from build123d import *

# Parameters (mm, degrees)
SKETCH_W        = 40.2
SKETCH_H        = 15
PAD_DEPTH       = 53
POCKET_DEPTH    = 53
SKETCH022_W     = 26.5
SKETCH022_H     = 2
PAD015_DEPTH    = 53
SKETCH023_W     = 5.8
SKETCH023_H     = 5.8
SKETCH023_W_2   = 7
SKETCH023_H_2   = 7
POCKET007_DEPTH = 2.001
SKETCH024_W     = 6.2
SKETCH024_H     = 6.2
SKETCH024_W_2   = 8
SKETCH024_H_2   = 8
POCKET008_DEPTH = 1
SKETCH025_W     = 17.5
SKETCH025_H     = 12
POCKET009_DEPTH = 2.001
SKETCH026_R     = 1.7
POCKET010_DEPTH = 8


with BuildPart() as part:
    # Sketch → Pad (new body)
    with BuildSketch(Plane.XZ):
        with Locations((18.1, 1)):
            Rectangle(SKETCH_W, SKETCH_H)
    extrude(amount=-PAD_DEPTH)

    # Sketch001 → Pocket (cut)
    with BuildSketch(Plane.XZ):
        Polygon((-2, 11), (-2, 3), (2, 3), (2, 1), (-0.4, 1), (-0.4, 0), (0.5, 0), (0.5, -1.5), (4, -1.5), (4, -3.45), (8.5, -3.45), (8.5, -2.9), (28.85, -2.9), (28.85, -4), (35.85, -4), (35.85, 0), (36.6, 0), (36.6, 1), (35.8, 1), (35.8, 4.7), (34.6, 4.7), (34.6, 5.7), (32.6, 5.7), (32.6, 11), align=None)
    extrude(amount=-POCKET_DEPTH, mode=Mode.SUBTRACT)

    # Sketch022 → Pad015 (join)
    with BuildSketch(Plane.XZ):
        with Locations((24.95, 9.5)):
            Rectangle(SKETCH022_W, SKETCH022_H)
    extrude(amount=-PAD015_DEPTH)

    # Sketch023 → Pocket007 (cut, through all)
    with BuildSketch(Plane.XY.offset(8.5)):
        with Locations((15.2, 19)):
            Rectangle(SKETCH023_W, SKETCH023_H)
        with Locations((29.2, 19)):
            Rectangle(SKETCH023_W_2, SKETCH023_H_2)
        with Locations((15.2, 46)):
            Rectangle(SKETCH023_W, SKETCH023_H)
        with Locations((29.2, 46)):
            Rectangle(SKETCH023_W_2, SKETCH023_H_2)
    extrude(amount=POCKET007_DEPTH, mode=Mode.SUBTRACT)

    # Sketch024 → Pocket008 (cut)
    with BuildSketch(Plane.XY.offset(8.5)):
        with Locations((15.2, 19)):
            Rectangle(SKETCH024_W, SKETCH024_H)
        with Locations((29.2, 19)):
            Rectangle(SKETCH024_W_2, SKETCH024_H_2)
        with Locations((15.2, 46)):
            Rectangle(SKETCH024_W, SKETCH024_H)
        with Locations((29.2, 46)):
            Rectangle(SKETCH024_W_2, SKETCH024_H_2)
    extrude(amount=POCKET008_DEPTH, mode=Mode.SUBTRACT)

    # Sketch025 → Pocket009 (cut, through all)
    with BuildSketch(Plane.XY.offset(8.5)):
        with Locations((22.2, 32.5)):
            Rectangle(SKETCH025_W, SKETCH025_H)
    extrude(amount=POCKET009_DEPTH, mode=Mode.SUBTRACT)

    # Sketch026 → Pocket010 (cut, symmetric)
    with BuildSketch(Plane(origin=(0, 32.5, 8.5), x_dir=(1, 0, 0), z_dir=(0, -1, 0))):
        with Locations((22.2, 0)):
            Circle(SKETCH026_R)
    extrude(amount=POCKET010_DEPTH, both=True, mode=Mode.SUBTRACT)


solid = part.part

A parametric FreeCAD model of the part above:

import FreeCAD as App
import Part
import Sketcher

doc = App.newDocument("Part")
body = doc.addObject("PartDesign::Body", "Body")

sketch1 = doc.addObject("Sketcher::SketchObject", "Sketch")
body.addObject(sketch1)
sketch1.AttachmentSupport = (doc.XZ_Plane, [""])
sketch1.MapMode = "FlatFace"
sketch1.addGeometry(Part.LineSegment(App.Vector(-2, 8, 0), App.Vector(-2, -6, 0)), False)
sketch1.addGeometry(Part.LineSegment(App.Vector(-2, -6, 0), App.Vector(38, -6, 0)), False)
sketch1.addGeometry(Part.LineSegment(App.Vector(38, -6, 0), App.Vector(38, 8, 0)), False)
sketch1.addGeometry(Part.LineSegment(App.Vector(38, 8, 0), App.Vector(-2, 8, 0)), False)
sketch1.addConstraint(Sketcher.Constraint("Coincident", 0, 2, 1, 1))
sketch1.addConstraint(Sketcher.Constraint("Coincident", 1, 2, 2, 1))
sketch1.addConstraint(Sketcher.Constraint("Coincident", 2, 2, 3, 1))
sketch1.addConstraint(Sketcher.Constraint("Coincident", 3, 2, 0, 1))
sketch1.addConstraint(Sketcher.Constraint("Vertical", 0))
sketch1.addConstraint(Sketcher.Constraint("Horizontal", 1))
sketch1.addConstraint(Sketcher.Constraint("Vertical", 2))
sketch1.addConstraint(Sketcher.Constraint("Horizontal", 3))
sketch1.addConstraint(Sketcher.Constraint("DistanceY", 0, 2, 0, 1, 15.0))
sketch1.addConstraint(Sketcher.Constraint("DistanceX", 1, 1, 1, 2, 40.2))
sketch1.addConstraint(Sketcher.Constraint("DistanceX", 0, 2, -1, 1, 2.0))
sketch1.addConstraint(Sketcher.Constraint("DistanceY", 0, 2, -1, 1, 6.5))
pad1 = doc.addObject("PartDesign::Pad", "Pad")
body.addObject(pad1)
pad1.Profile = sketch1
pad1.Length = 53
pad1.Reversed = True

sketch2 = doc.addObject("Sketcher::SketchObject", "Sketch001")
body.addObject(sketch2)
sketch2.AttachmentSupport = (doc.XZ_Plane, [""])
sketch2.MapMode = "FlatFace"
sketch2.addGeometry(Part.LineSegment(App.Vector(-2, 11, 0), App.Vector(-2, 3, 0)), False)
sketch2.addGeometry(Part.LineSegment(App.Vector(-2, 3, 0), App.Vector(2, 3, 0)), False)
sketch2.addGeometry(Part.LineSegment(App.Vector(2, 3, 0), App.Vector(2, 1, 0)), False)
sketch2.addGeometry(Part.LineSegment(App.Vector(2, 1, 0), App.Vector(-0.4, 1, 0)), False)
sketch2.addGeometry(Part.LineSegment(App.Vector(-0.4, 1, 0), App.Vector(-0.4, 0, 0)), False)
sketch2.addGeometry(Part.LineSegment(App.Vector(-0.4, 0, 0), App.Vector(0.5, 0, 0)), False)
sketch2.addGeometry(Part.LineSegment(App.Vector(0.5, 0, 0), App.Vector(0.5, -1.5, 0)), False)
sketch2.addGeometry(Part.LineSegment(App.Vector(0.5, -1.5, 0), App.Vector(4, -1.5, 0)), False)
sketch2.addGeometry(Part.LineSegment(App.Vector(4, -1.5, 0), App.Vector(4, -3.5, 0)), False)
sketch2.addGeometry(Part.LineSegment(App.Vector(4, -3.5, 0), App.Vector(8.5, -3.5, 0)), False)
sketch2.addGeometry(Part.LineSegment(App.Vector(8.5, -3.5, 0), App.Vector(8.5, -2.9, 0)), False)
sketch2.addGeometry(Part.LineSegment(App.Vector(8.5, -2.9, 0), App.Vector(28.9, -2.9, 0)), False)
sketch2.addGeometry(Part.LineSegment(App.Vector(28.9, -2.9, 0), App.Vector(28.9, -4, 0)), False)
sketch2.addGeometry(Part.LineSegment(App.Vector(28.9, -4, 0), App.Vector(35.9, -4, 0)), False)
sketch2.addGeometry(Part.LineSegment(App.Vector(35.9, -4, 0), App.Vector(35.9, 0, 0)), False)
sketch2.addGeometry(Part.LineSegment(App.Vector(35.9, 0, 0), App.Vector(36.6, 0, 0)), False)
sketch2.addGeometry(Part.LineSegment(App.Vector(36.6, 0, 0), App.Vector(36.6, 1, 0)), False)
sketch2.addGeometry(Part.LineSegment(App.Vector(36.6, 1, 0), App.Vector(35.8, 1, 0)), False)
sketch2.addGeometry(Part.LineSegment(App.Vector(35.8, 1, 0), App.Vector(35.8, 4.7, 0)), False)
sketch2.addGeometry(Part.LineSegment(App.Vector(35.8, 4.7, 0), App.Vector(34.6, 4.7, 0)), False)
sketch2.addGeometry(Part.LineSegment(App.Vector(34.6, 4.7, 0), App.Vector(34.6, 5.7, 0)), False)
sketch2.addGeometry(Part.LineSegment(App.Vector(34.6, 5.7, 0), App.Vector(32.6, 5.7, 0)), False)
sketch2.addGeometry(Part.LineSegment(App.Vector(32.6, 5.7, 0), App.Vector(32.6, 11, 0)), False)
sketch2.addGeometry(Part.LineSegment(App.Vector(32.6, 11, 0), App.Vector(-2, 11, 0)), False)
sketch2.addConstraint(Sketcher.Constraint("Coincident", 0, 2, 1, 1))
sketch2.addConstraint(Sketcher.Constraint("Coincident", 1, 2, 2, 1))
sketch2.addConstraint(Sketcher.Constraint("Coincident", 2, 2, 3, 1))
sketch2.addConstraint(Sketcher.Constraint("Coincident", 3, 2, 4, 1))
sketch2.addConstraint(Sketcher.Constraint("Coincident", 4, 2, 5, 1))
sketch2.addConstraint(Sketcher.Constraint("Coincident", 5, 2, 6, 1))
sketch2.addConstraint(Sketcher.Constraint("Coincident", 6, 2, 7, 1))
sketch2.addConstraint(Sketcher.Constraint("Coincident", 7, 2, 8, 1))
sketch2.addConstraint(Sketcher.Constraint("Coincident", 8, 2, 9, 1))
sketch2.addConstraint(Sketcher.Constraint("Coincident", 9, 2, 10, 1))
sketch2.addConstraint(Sketcher.Constraint("Coincident", 10, 2, 11, 1))
sketch2.addConstraint(Sketcher.Constraint("Coincident", 11, 2, 12, 1))
sketch2.addConstraint(Sketcher.Constraint("Coincident", 12, 2, 13, 1))
sketch2.addConstraint(Sketcher.Constraint("Coincident", 13, 2, 14, 1))
sketch2.addConstraint(Sketcher.Constraint("Coincident", 14, 2, 15, 1))
sketch2.addConstraint(Sketcher.Constraint("Coincident", 15, 2, 16, 1))
sketch2.addConstraint(Sketcher.Constraint("Coincident", 16, 2, 17, 1))
sketch2.addConstraint(Sketcher.Constraint("Coincident", 17, 2, 18, 1))
sketch2.addConstraint(Sketcher.Constraint("Coincident", 18, 2, 19, 1))
sketch2.addConstraint(Sketcher.Constraint("Coincident", 19, 2, 20, 1))
sketch2.addConstraint(Sketcher.Constraint("Coincident", 20, 2, 21, 1))
sketch2.addConstraint(Sketcher.Constraint("Coincident", 21, 2, 22, 1))
sketch2.addConstraint(Sketcher.Constraint("Coincident", 22, 2, 23, 1))
sketch2.addConstraint(Sketcher.Constraint("Coincident", 23, 2, 0, 1))
sketch2.addConstraint(Sketcher.Constraint("Vertical", 0))
sketch2.addConstraint(Sketcher.Constraint("Horizontal", 1))
sketch2.addConstraint(Sketcher.Constraint("Vertical", 2))
sketch2.addConstraint(Sketcher.Constraint("Horizontal", 3))
sketch2.addConstraint(Sketcher.Constraint("Vertical", 4))
sketch2.addConstraint(Sketcher.Constraint("Horizontal", 5))
sketch2.addConstraint(Sketcher.Constraint("Vertical", 6))
sketch2.addConstraint(Sketcher.Constraint("Horizontal", 7))
sketch2.addConstraint(Sketcher.Constraint("Vertical", 8))
sketch2.addConstraint(Sketcher.Constraint("Horizontal", 9))
sketch2.addConstraint(Sketcher.Constraint("Vertical", 10))
sketch2.addConstraint(Sketcher.Constraint("Horizontal", 11))
sketch2.addConstraint(Sketcher.Constraint("Vertical", 12))
sketch2.addConstraint(Sketcher.Constraint("Horizontal", 13))
sketch2.addConstraint(Sketcher.Constraint("Vertical", 14))
sketch2.addConstraint(Sketcher.Constraint("Horizontal", 15))
sketch2.addConstraint(Sketcher.Constraint("Vertical", 16))
sketch2.addConstraint(Sketcher.Constraint("Horizontal", 17))
sketch2.addConstraint(Sketcher.Constraint("Vertical", 18))
sketch2.addConstraint(Sketcher.Constraint("Horizontal", 19))
sketch2.addConstraint(Sketcher.Constraint("Vertical", 20))
sketch2.addConstraint(Sketcher.Constraint("Horizontal", 21))
sketch2.addConstraint(Sketcher.Constraint("Vertical", 22))
sketch2.addConstraint(Sketcher.Constraint("Horizontal", 23))
sketch2.addConstraint(Sketcher.Constraint("PointOnObject", 4, 2, -1))
sketch2.addConstraint(Sketcher.Constraint("PointOnObject", 14, 2, -1))
sketch2.addConstraint(Sketcher.Constraint("Horizontal", 3, 2, 16, 2))
sketch2.addConstraint(Sketcher.Constraint("Equal", 21, 2))
sketch2.addConstraint(Sketcher.Constraint("Equal", 1, 14))
sketch2.addConstraint(Sketcher.Constraint("Equal", 16, 20))
sketch2.addConstraint(Sketcher.Constraint("DistanceX", 1, 1, 1, 2, 4.0))
sketch2.addConstraint(Sketcher.Constraint("DistanceX", 13, 1, 13, 2, 7.0))
sketch2.addConstraint(Sketcher.Constraint("DistanceX", 21, 2, 21, 1, 2.0))
sketch2.addConstraint(Sketcher.Constraint("DistanceY", 0, 2, 0, 1, 8.0))
sketch2.addConstraint(Sketcher.Constraint("DistanceY", 4, 2, 4, 1, 1.0))
sketch2.addConstraint(Sketcher.Constraint("DistanceX", 3, 2, 3, 1, 2.4))
sketch2.addConstraint(Sketcher.Constraint("DistanceX", 5, 1, 5, 2, 0.9))
sketch2.addConstraint(Sketcher.Constraint("DistanceX", 7, 1, 7, 2, 3.5))
sketch2.addConstraint(Sketcher.Constraint("DistanceX", 9, 1, 9, 2, 4.5))
sketch2.addConstraint(Sketcher.Constraint("DistanceX", 17, 2, 17, 1, 0.8))
sketch2.addConstraint(Sketcher.Constraint("DistanceX", 19, 2, 19, 1, 1.2))
sketch2.addConstraint(Sketcher.Constraint("DistanceX", 23, 2, 23, 1, 34.6))
sketch2.addConstraint(Sketcher.Constraint("DistanceY", 6, 2, 6, 1, 1.5))
sketch2.addConstraint(Sketcher.Constraint("DistanceY", 12, 2, 12, 1, 1.1))
sketch2.addConstraint(Sketcher.Constraint("DistanceY", 18, 1, 18, 2, 3.7))
sketch2.addConstraint(Sketcher.Constraint("DistanceX", 0, 2, -1, 1, 2.0))
sketch2.addConstraint(Sketcher.Constraint("DistanceX", 11, 1, 11, 2, 20.35))
sketch2.addConstraint(Sketcher.Constraint("DistanceY", 8, 2, 8, 1, 1.95))
pocket1 = doc.addObject("PartDesign::Pocket", "Pocket")
body.addObject(pocket1)
pocket1.Profile = sketch2
pocket1.Length = 53

sketch3 = doc.addObject("Sketcher::SketchObject", "Sketch002")
body.addObject(sketch3)
sketch3.AttachmentSupport = (doc.XZ_Plane, [""])
sketch3.MapMode = "FlatFace"
sketch3.addGeometry(Part.LineSegment(App.Vector(11.7, 10.5, 0), App.Vector(11.7, 8.5, 0)), False)
sketch3.addGeometry(Part.LineSegment(App.Vector(11.7, 8.5, 0), App.Vector(38.2, 8.5, 0)), False)
sketch3.addGeometry(Part.LineSegment(App.Vector(38.2, 8.5, 0), App.Vector(38.2, 10.5, 0)), False)
sketch3.addGeometry(Part.LineSegment(App.Vector(38.2, 10.5, 0), App.Vector(11.7, 10.5, 0)), False)
sketch3.addConstraint(Sketcher.Constraint("Coincident", 0, 2, 1, 1))
sketch3.addConstraint(Sketcher.Constraint("Coincident", 1, 2, 2, 1))
sketch3.addConstraint(Sketcher.Constraint("Coincident", 2, 2, 3, 1))
sketch3.addConstraint(Sketcher.Constraint("Coincident", 3, 2, 0, 1))
sketch3.addConstraint(Sketcher.Constraint("Vertical", 0))
sketch3.addConstraint(Sketcher.Constraint("Horizontal", 1))
sketch3.addConstraint(Sketcher.Constraint("Vertical", 2))
sketch3.addConstraint(Sketcher.Constraint("Horizontal", 3))
sketch3.addConstraint(Sketcher.Constraint("DistanceY", 0, 2, 0, 1, 2.0))
sketch3.addConstraint(Sketcher.Constraint("DistanceX", 1, 1, 1, 2, 26.5))
sketch3.addConstraint(Sketcher.Constraint("DistanceX", -1, 1, 0, 2, 11.7))
sketch3.addConstraint(Sketcher.Constraint("DistanceY", -1, 1, 0, 2, 8.5))
pad2 = doc.addObject("PartDesign::Pad", "Pad001")
body.addObject(pad2)
pad2.Profile = sketch3
pad2.Length = 53
pad2.Reversed = True

sketch4 = doc.addObject("Sketcher::SketchObject", "Sketch003")
body.addObject(sketch4)
sketch4.AttachmentSupport = (doc.XY_Plane, [""])
sketch4.MapMode = "FlatFace"
sketch4.AttachmentOffset = App.Placement(App.Vector(0, 0, 8.5), App.Rotation())
sketch4.addGeometry(Part.LineSegment(App.Vector(12, 22, 0), App.Vector(12, 16, 0)), False)
sketch4.addGeometry(Part.LineSegment(App.Vector(12, 16, 0), App.Vector(18, 16, 0)), False)
sketch4.addGeometry(Part.LineSegment(App.Vector(18, 16, 0), App.Vector(18, 22, 0)), False)
sketch4.addGeometry(Part.LineSegment(App.Vector(18, 22, 0), App.Vector(12, 22, 0)), False)
sketch4.addGeometry(Part.LineSegment(App.Vector(26, 22, 0), App.Vector(26, 16, 0)), False)
sketch4.addGeometry(Part.LineSegment(App.Vector(26, 16, 0), App.Vector(33, 16, 0)), False)
sketch4.addGeometry(Part.LineSegment(App.Vector(33, 16, 0), App.Vector(33, 22, 0)), False)
sketch4.addGeometry(Part.LineSegment(App.Vector(33, 22, 0), App.Vector(26, 22, 0)), False)
sketch4.addGeometry(Part.LineSegment(App.Vector(12, 49, 0), App.Vector(12, 43, 0)), False)
sketch4.addGeometry(Part.LineSegment(App.Vector(12, 43, 0), App.Vector(18, 43, 0)), False)
sketch4.addGeometry(Part.LineSegment(App.Vector(18, 43, 0), App.Vector(18, 49, 0)), False)
sketch4.addGeometry(Part.LineSegment(App.Vector(18, 49, 0), App.Vector(12, 49, 0)), False)
sketch4.addGeometry(Part.LineSegment(App.Vector(26, 50, 0), App.Vector(26, 42, 0)), False)
sketch4.addGeometry(Part.LineSegment(App.Vector(26, 42, 0), App.Vector(33, 42, 0)), False)
sketch4.addGeometry(Part.LineSegment(App.Vector(33, 42, 0), App.Vector(33, 50, 0)), False)
sketch4.addGeometry(Part.LineSegment(App.Vector(33, 50, 0), App.Vector(26, 50, 0)), False)
sketch4.addConstraint(Sketcher.Constraint("Coincident", 0, 2, 1, 1))
sketch4.addConstraint(Sketcher.Constraint("Coincident", 1, 2, 2, 1))
sketch4.addConstraint(Sketcher.Constraint("Coincident", 2, 2, 3, 1))
sketch4.addConstraint(Sketcher.Constraint("Coincident", 3, 2, 0, 1))
sketch4.addConstraint(Sketcher.Constraint("Coincident", 4, 2, 5, 1))
sketch4.addConstraint(Sketcher.Constraint("Coincident", 5, 2, 6, 1))
sketch4.addConstraint(Sketcher.Constraint("Coincident", 6, 2, 7, 1))
sketch4.addConstraint(Sketcher.Constraint("Coincident", 7, 2, 4, 1))
sketch4.addConstraint(Sketcher.Constraint("Coincident", 8, 2, 9, 1))
sketch4.addConstraint(Sketcher.Constraint("Coincident", 9, 2, 10, 1))
sketch4.addConstraint(Sketcher.Constraint("Coincident", 10, 2, 11, 1))
sketch4.addConstraint(Sketcher.Constraint("Coincident", 11, 2, 8, 1))
sketch4.addConstraint(Sketcher.Constraint("Coincident", 12, 2, 13, 1))
sketch4.addConstraint(Sketcher.Constraint("Coincident", 13, 2, 14, 1))
sketch4.addConstraint(Sketcher.Constraint("Coincident", 14, 2, 15, 1))
sketch4.addConstraint(Sketcher.Constraint("Coincident", 15, 2, 12, 1))
sketch4.addConstraint(Sketcher.Constraint("Vertical", 0))
sketch4.addConstraint(Sketcher.Constraint("Horizontal", 1))
sketch4.addConstraint(Sketcher.Constraint("Vertical", 2))
sketch4.addConstraint(Sketcher.Constraint("Horizontal", 3))
sketch4.addConstraint(Sketcher.Constraint("Vertical", 4))
sketch4.addConstraint(Sketcher.Constraint("Horizontal", 5))
sketch4.addConstraint(Sketcher.Constraint("Vertical", 6))
sketch4.addConstraint(Sketcher.Constraint("Horizontal", 7))
sketch4.addConstraint(Sketcher.Constraint("Vertical", 8))
sketch4.addConstraint(Sketcher.Constraint("Horizontal", 9))
sketch4.addConstraint(Sketcher.Constraint("Vertical", 10))
sketch4.addConstraint(Sketcher.Constraint("Horizontal", 11))
sketch4.addConstraint(Sketcher.Constraint("Vertical", 12))
sketch4.addConstraint(Sketcher.Constraint("Horizontal", 13))
sketch4.addConstraint(Sketcher.Constraint("Vertical", 14))
sketch4.addConstraint(Sketcher.Constraint("Horizontal", 15))
sketch4.addConstraint(Sketcher.Constraint("Vertical", 3, 2, 8, 2))
sketch4.addConstraint(Sketcher.Constraint("Vertical", 2, 2, 9, 2))
sketch4.addConstraint(Sketcher.Constraint("Vertical", 7, 2, 12, 2))
sketch4.addConstraint(Sketcher.Constraint("Vertical", 6, 2, 13, 2))
sketch4.addConstraint(Sketcher.Constraint("Equal", 11, 0))
sketch4.addConstraint(Sketcher.Constraint("Equal", 15, 4))
sketch4.addConstraint(Sketcher.Constraint("Equal", 2, 8))
sketch4.addConstraint(Sketcher.Constraint("Equal", 6, 12))
sketch4.addConstraint(Sketcher.Constraint("DistanceX", 5, 1, 5, 2, 7.0))
sketch4.addConstraint(Sketcher.Constraint("DistanceX", 1, 1, 1, 2, 5.8))
sketch4.addConstraint(Sketcher.Constraint("DistanceY", 0, 2, 8, 2, 27.0))
sketch4.addConstraint(Sketcher.Constraint("DistanceY", 7, 2, 12, 2, 20.0))
sketch4.addConstraint(Sketcher.Constraint("DistanceX", -1, 1, 0, 2, 12.3))
sketch4.addConstraint(Sketcher.Constraint("DistanceY", -1, 1, 0, 2, 16.1))
sketch4.addConstraint(Sketcher.Constraint("DistanceX", -1, 1, 4, 2, 25.7))
sketch4.addConstraint(Sketcher.Constraint("DistanceY", -1, 1, 4, 2, 15.5))
pocket2 = doc.addObject("PartDesign::Pocket", "Pocket001")
body.addObject(pocket2)
pocket2.Profile = sketch4
pocket2.Type = "ThroughAll"
pocket2.Reversed = True

sketch5 = doc.addObject("Sketcher::SketchObject", "Sketch004")
body.addObject(sketch5)
sketch5.AttachmentSupport = (doc.XY_Plane, [""])
sketch5.MapMode = "FlatFace"
sketch5.AttachmentOffset = App.Placement(App.Vector(0, 0, 8.5), App.Rotation())
sketch5.addGeometry(Part.LineSegment(App.Vector(12, 22, 0), App.Vector(12, 16, 0)), False)
sketch5.addGeometry(Part.LineSegment(App.Vector(12, 16, 0), App.Vector(18, 16, 0)), False)
sketch5.addGeometry(Part.LineSegment(App.Vector(18, 16, 0), App.Vector(18, 22, 0)), False)
sketch5.addGeometry(Part.LineSegment(App.Vector(18, 22, 0), App.Vector(12, 22, 0)), False)
sketch5.addGeometry(Part.LineSegment(App.Vector(25, 23, 0), App.Vector(25, 15, 0)), False)
sketch5.addGeometry(Part.LineSegment(App.Vector(25, 15, 0), App.Vector(33, 15, 0)), False)
sketch5.addGeometry(Part.LineSegment(App.Vector(33, 15, 0), App.Vector(33, 23, 0)), False)
sketch5.addGeometry(Part.LineSegment(App.Vector(33, 23, 0), App.Vector(25, 23, 0)), False)
sketch5.addGeometry(Part.LineSegment(App.Vector(12, 49, 0), App.Vector(12, 43, 0)), False)
sketch5.addGeometry(Part.LineSegment(App.Vector(12, 43, 0), App.Vector(18, 43, 0)), False)
sketch5.addGeometry(Part.LineSegment(App.Vector(18, 43, 0), App.Vector(18, 49, 0)), False)
sketch5.addGeometry(Part.LineSegment(App.Vector(18, 49, 0), App.Vector(12, 49, 0)), False)
sketch5.addGeometry(Part.LineSegment(App.Vector(25, 50, 0), App.Vector(25, 42, 0)), False)
sketch5.addGeometry(Part.LineSegment(App.Vector(25, 42, 0), App.Vector(33, 42, 0)), False)
sketch5.addGeometry(Part.LineSegment(App.Vector(33, 42, 0), App.Vector(33, 50, 0)), False)
sketch5.addGeometry(Part.LineSegment(App.Vector(33, 50, 0), App.Vector(25, 50, 0)), False)
sketch5.addConstraint(Sketcher.Constraint("Coincident", 0, 2, 1, 1))
sketch5.addConstraint(Sketcher.Constraint("Coincident", 1, 2, 2, 1))
sketch5.addConstraint(Sketcher.Constraint("Coincident", 2, 2, 3, 1))
sketch5.addConstraint(Sketcher.Constraint("Coincident", 3, 2, 0, 1))
sketch5.addConstraint(Sketcher.Constraint("Coincident", 4, 2, 5, 1))
sketch5.addConstraint(Sketcher.Constraint("Coincident", 5, 2, 6, 1))
sketch5.addConstraint(Sketcher.Constraint("Coincident", 6, 2, 7, 1))
sketch5.addConstraint(Sketcher.Constraint("Coincident", 7, 2, 4, 1))
sketch5.addConstraint(Sketcher.Constraint("Coincident", 8, 2, 9, 1))
sketch5.addConstraint(Sketcher.Constraint("Coincident", 9, 2, 10, 1))
sketch5.addConstraint(Sketcher.Constraint("Coincident", 10, 2, 11, 1))
sketch5.addConstraint(Sketcher.Constraint("Coincident", 11, 2, 8, 1))
sketch5.addConstraint(Sketcher.Constraint("Coincident", 12, 2, 13, 1))
sketch5.addConstraint(Sketcher.Constraint("Coincident", 13, 2, 14, 1))
sketch5.addConstraint(Sketcher.Constraint("Coincident", 14, 2, 15, 1))
sketch5.addConstraint(Sketcher.Constraint("Coincident", 15, 2, 12, 1))
sketch5.addConstraint(Sketcher.Constraint("Vertical", 0))
sketch5.addConstraint(Sketcher.Constraint("Horizontal", 1))
sketch5.addConstraint(Sketcher.Constraint("Vertical", 2))
sketch5.addConstraint(Sketcher.Constraint("Horizontal", 3))
sketch5.addConstraint(Sketcher.Constraint("Vertical", 4))
sketch5.addConstraint(Sketcher.Constraint("Horizontal", 5))
sketch5.addConstraint(Sketcher.Constraint("Vertical", 6))
sketch5.addConstraint(Sketcher.Constraint("Horizontal", 7))
sketch5.addConstraint(Sketcher.Constraint("Vertical", 8))
sketch5.addConstraint(Sketcher.Constraint("Horizontal", 9))
sketch5.addConstraint(Sketcher.Constraint("Vertical", 10))
sketch5.addConstraint(Sketcher.Constraint("Horizontal", 11))
sketch5.addConstraint(Sketcher.Constraint("Vertical", 12))
sketch5.addConstraint(Sketcher.Constraint("Horizontal", 13))
sketch5.addConstraint(Sketcher.Constraint("Vertical", 14))
sketch5.addConstraint(Sketcher.Constraint("Horizontal", 15))
sketch5.addConstraint(Sketcher.Constraint("Vertical", 3, 2, 8, 2))
sketch5.addConstraint(Sketcher.Constraint("Vertical", 2, 2, 9, 2))
sketch5.addConstraint(Sketcher.Constraint("Vertical", 7, 2, 12, 2))
sketch5.addConstraint(Sketcher.Constraint("Vertical", 6, 2, 13, 2))
sketch5.addConstraint(Sketcher.Constraint("Equal", 11, 0))
sketch5.addConstraint(Sketcher.Constraint("Equal", 15, 4))
sketch5.addConstraint(Sketcher.Constraint("Equal", 2, 8))
sketch5.addConstraint(Sketcher.Constraint("Equal", 6, 12))
sketch5.addConstraint(Sketcher.Constraint("DistanceX", 5, 1, 5, 2, 8.0))
sketch5.addConstraint(Sketcher.Constraint("DistanceX", 1, 1, 1, 2, 6.2))
sketch5.addConstraint(Sketcher.Constraint("DistanceY", -1, 1, 4, 2, 15.0))
sketch5.addConstraint(Sketcher.Constraint("DistanceY", -1, 1, 12, 2, 42.0))
sketch5.addConstraint(Sketcher.Constraint("DistanceY", 0, 2, 8, 2, 27.0))
sketch5.addConstraint(Sketcher.Constraint("DistanceX", -1, 1, 0, 2, 12.1))
sketch5.addConstraint(Sketcher.Constraint("DistanceY", -1, 1, 0, 2, 15.9))
sketch5.addConstraint(Sketcher.Constraint("DistanceX", -1, 1, 4, 2, 25.2))
pocket3 = doc.addObject("PartDesign::Pocket", "Pocket002")
body.addObject(pocket3)
pocket3.Profile = sketch5
pocket3.Length = 1
pocket3.Reversed = True

sketch6 = doc.addObject("Sketcher::SketchObject", "Sketch005")
body.addObject(sketch6)
sketch6.AttachmentSupport = (doc.XY_Plane, [""])
sketch6.MapMode = "FlatFace"
sketch6.AttachmentOffset = App.Placement(App.Vector(0, 0, 8.5), App.Rotation())
sketch6.addGeometry(Part.LineSegment(App.Vector(13, 38, 0), App.Vector(13, 26, 0)), False)
sketch6.addGeometry(Part.LineSegment(App.Vector(13, 26, 0), App.Vector(31, 26, 0)), False)
sketch6.addGeometry(Part.LineSegment(App.Vector(31, 26, 0), App.Vector(31, 38, 0)), False)
sketch6.addGeometry(Part.LineSegment(App.Vector(31, 38, 0), App.Vector(13, 38, 0)), False)
sketch6.addConstraint(Sketcher.Constraint("Coincident", 0, 2, 1, 1))
sketch6.addConstraint(Sketcher.Constraint("Coincident", 1, 2, 2, 1))
sketch6.addConstraint(Sketcher.Constraint("Coincident", 2, 2, 3, 1))
sketch6.addConstraint(Sketcher.Constraint("Coincident", 3, 2, 0, 1))
sketch6.addConstraint(Sketcher.Constraint("Vertical", 0))
sketch6.addConstraint(Sketcher.Constraint("Horizontal", 1))
sketch6.addConstraint(Sketcher.Constraint("Vertical", 2))
sketch6.addConstraint(Sketcher.Constraint("Horizontal", 3))
sketch6.addConstraint(Sketcher.Constraint("DistanceY", 0, 2, 0, 1, 12.0))
sketch6.addConstraint(Sketcher.Constraint("DistanceX", 1, 1, 1, 2, 17.5))
sketch6.addConstraint(Sketcher.Constraint("DistanceY", -1, 1, 0, 2, 26.5))
sketch6.addConstraint(Sketcher.Constraint("DistanceX", -1, 1, 0, 2, 13.45))
pocket4 = doc.addObject("PartDesign::Pocket", "Pocket003")
body.addObject(pocket4)
pocket4.Profile = sketch6
pocket4.Type = "ThroughAll"
pocket4.Reversed = True

sketch7 = doc.addObject("Sketcher::SketchObject", "Sketch006")
body.addObject(sketch7)
sketch7.AttachmentSupport = (doc.XZ_Plane, [""])
sketch7.MapMode = "FlatFace"
sketch7.AttachmentOffset = App.Placement(App.Vector(0, 0, -32.5), App.Rotation())
sketch7.addGeometry(Part.Circle(App.Vector(22.2, 8.5, 0), App.Vector(0, 0, 1), 1.7), False)
sketch7.addConstraint(Sketcher.Constraint("Diameter", 0, 3.4))
sketch7.addConstraint(Sketcher.Constraint("DistanceX", -1, 1, 0, 3, 22.2))
sketch7.addConstraint(Sketcher.Constraint("DistanceY", -1, 1, 0, 3, 8.5))
pocket5 = doc.addObject("PartDesign::Pocket", "Pocket004")
body.addObject(pocket5)
pocket5.Profile = sketch7
pocket5.Length = 16
pocket5.Midplane = True

doc.recompute()
